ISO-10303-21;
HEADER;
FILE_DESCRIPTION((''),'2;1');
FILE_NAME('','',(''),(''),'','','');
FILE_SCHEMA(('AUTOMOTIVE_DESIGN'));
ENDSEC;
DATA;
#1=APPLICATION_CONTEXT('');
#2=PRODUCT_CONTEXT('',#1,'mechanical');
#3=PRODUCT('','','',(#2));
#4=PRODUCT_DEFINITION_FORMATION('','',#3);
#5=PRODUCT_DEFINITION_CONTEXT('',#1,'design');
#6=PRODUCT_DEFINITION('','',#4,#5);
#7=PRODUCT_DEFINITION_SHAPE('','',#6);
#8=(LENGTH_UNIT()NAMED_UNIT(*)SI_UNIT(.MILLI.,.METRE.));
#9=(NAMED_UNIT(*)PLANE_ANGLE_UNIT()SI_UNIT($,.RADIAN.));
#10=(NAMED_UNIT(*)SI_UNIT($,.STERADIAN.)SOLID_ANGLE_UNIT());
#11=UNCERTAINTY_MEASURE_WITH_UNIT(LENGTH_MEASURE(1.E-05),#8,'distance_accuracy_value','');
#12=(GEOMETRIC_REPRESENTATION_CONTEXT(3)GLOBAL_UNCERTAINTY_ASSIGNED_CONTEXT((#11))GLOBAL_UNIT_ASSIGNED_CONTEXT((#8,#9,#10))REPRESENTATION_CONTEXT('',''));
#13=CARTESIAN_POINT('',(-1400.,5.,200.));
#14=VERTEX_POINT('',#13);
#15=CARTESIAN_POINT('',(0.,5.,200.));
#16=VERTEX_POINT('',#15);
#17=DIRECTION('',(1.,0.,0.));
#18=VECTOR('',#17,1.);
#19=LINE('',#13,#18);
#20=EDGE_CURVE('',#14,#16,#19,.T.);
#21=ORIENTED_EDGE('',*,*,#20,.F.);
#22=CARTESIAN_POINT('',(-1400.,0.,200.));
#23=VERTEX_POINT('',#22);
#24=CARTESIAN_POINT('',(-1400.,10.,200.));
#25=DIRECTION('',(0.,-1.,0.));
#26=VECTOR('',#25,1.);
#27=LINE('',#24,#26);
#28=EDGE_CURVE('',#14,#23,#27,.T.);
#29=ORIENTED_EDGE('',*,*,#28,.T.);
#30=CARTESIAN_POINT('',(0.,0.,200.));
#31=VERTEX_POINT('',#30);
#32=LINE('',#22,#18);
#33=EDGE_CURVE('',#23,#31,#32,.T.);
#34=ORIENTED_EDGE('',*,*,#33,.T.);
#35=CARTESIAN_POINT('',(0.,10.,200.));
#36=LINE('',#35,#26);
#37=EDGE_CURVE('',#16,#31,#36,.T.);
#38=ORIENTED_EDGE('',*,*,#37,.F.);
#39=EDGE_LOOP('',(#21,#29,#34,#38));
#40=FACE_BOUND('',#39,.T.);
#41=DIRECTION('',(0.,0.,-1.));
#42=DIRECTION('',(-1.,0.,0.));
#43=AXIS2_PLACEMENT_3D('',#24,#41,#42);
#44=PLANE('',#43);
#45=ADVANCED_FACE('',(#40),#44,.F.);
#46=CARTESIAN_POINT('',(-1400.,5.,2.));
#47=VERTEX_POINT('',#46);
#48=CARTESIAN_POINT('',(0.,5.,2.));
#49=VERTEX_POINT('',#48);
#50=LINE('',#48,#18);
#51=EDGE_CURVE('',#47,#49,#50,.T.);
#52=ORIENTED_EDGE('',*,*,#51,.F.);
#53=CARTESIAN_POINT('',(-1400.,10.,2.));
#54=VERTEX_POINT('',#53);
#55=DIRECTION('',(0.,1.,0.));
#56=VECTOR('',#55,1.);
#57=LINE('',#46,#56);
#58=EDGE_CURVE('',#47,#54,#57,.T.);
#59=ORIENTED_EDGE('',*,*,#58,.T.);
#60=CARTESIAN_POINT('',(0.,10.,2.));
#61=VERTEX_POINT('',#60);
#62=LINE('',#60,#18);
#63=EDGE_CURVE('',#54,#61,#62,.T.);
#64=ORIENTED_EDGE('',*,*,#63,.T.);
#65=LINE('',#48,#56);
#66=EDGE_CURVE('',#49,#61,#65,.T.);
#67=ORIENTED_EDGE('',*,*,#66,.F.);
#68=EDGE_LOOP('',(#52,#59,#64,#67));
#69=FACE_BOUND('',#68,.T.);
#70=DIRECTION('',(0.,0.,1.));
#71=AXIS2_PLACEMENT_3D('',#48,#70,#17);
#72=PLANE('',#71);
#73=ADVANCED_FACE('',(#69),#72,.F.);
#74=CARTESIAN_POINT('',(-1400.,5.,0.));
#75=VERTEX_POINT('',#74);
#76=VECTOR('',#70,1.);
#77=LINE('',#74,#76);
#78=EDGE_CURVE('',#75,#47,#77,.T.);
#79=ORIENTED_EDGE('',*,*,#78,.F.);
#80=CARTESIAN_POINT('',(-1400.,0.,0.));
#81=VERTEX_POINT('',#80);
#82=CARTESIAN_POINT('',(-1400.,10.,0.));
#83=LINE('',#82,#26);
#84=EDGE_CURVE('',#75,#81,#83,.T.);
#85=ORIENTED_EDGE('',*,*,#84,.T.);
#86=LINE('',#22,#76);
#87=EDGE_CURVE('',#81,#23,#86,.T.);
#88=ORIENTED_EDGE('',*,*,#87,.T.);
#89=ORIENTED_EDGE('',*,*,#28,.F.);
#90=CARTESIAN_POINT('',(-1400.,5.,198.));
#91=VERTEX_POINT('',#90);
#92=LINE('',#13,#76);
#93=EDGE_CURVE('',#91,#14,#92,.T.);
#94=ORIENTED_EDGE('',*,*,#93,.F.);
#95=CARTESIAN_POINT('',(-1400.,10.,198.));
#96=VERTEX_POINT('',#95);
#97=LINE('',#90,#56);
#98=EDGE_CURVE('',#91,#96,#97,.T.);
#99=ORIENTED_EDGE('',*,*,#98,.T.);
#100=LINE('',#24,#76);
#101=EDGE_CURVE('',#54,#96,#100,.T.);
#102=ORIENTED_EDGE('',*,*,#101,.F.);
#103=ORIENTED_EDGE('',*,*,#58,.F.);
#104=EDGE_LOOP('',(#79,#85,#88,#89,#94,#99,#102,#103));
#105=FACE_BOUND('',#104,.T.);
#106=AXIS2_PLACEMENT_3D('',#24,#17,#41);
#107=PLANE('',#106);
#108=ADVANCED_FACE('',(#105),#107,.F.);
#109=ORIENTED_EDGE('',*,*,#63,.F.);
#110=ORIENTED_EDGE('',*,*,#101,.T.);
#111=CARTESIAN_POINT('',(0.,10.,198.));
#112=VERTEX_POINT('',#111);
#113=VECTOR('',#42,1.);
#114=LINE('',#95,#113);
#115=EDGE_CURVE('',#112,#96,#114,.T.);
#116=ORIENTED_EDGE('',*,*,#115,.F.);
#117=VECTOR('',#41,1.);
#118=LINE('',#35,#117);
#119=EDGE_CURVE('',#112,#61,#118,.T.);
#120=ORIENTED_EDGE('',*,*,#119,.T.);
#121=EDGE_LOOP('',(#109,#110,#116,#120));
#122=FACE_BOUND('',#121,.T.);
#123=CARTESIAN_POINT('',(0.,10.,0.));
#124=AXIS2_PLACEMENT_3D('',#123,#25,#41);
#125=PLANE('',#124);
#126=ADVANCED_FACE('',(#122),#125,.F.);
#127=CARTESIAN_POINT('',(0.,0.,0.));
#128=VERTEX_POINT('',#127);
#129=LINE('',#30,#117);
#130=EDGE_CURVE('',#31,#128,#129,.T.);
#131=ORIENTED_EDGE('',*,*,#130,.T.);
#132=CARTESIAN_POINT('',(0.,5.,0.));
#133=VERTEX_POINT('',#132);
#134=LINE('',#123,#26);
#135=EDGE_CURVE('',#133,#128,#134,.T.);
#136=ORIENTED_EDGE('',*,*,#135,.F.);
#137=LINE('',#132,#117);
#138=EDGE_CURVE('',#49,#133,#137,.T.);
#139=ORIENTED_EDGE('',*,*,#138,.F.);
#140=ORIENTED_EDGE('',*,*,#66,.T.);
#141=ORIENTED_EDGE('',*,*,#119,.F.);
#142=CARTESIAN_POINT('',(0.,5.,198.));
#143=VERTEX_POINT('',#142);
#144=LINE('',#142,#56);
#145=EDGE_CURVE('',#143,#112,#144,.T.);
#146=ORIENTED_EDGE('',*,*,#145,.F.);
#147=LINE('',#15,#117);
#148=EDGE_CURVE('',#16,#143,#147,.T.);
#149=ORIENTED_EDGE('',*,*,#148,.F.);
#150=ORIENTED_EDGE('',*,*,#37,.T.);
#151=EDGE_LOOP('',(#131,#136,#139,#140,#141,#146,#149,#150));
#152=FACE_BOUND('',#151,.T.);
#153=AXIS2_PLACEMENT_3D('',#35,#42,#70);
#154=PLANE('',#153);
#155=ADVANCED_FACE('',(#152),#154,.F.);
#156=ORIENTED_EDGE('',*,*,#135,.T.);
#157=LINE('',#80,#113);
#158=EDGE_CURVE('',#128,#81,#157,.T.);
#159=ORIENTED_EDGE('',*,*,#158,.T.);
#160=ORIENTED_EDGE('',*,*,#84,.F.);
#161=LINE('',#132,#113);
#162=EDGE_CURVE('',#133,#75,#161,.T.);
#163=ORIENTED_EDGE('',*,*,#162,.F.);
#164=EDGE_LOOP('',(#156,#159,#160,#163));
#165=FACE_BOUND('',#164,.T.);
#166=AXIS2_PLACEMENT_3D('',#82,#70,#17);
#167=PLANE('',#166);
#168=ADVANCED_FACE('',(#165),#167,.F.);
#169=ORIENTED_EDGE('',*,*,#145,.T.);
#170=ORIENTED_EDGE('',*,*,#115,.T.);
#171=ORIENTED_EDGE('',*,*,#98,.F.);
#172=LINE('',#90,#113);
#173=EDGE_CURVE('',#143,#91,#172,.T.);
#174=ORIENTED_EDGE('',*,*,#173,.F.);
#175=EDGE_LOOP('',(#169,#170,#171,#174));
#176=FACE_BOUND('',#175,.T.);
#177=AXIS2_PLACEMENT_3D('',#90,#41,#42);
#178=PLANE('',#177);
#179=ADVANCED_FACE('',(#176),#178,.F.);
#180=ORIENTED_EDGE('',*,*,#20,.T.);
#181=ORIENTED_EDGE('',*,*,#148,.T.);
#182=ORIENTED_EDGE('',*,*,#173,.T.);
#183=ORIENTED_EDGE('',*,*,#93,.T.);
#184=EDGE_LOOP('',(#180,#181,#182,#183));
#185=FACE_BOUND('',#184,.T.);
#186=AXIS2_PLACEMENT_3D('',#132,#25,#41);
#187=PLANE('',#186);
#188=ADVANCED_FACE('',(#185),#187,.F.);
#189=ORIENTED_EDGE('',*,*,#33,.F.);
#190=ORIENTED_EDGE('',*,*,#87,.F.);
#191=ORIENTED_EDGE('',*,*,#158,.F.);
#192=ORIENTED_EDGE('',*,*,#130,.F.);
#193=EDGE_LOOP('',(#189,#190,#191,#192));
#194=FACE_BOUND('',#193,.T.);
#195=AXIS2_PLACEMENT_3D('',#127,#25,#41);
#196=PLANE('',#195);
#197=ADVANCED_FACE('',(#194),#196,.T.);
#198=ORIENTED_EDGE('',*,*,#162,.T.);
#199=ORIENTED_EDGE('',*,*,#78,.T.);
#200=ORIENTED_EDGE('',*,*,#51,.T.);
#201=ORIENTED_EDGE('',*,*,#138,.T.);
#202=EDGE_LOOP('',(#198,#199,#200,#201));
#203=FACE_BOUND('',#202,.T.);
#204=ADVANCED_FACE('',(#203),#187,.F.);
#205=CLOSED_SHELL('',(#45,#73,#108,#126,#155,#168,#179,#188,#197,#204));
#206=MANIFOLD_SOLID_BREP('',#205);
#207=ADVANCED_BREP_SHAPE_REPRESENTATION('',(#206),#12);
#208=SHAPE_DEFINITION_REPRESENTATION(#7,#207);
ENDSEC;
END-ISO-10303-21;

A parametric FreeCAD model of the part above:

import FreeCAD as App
import Part
import Sketcher


def add_polygon(sketch, points):
    """Adds a closed chain of lines whose ends are joined by coincident constraints."""
    first, n = sketch.GeometryCount, len(points)
    for a, b in zip(points, points[1:] + points[:1]):
        sketch.addGeometry(Part.LineSegment(App.Vector(*a, 0), App.Vector(*b, 0)), False)
    for i in range(n):
        sketch.addConstraint(Sketcher.Constraint("Coincident", first + i, 2, first + (i + 1) % n, 1))

doc = App.newDocument("Part")
body = doc.addObject("PartDesign::Body", "Body")

sketch1 = doc.addObject("Sketcher::SketchObject", "Sketch")
body.addObject(sketch1)
sketch1.AttachmentSupport = (doc.XZ_Plane, [""])
sketch1.MapMode = "FlatFace"
add_polygon(sketch1, [(-1400, 0), (-1400, 200), (0, 200), (0, 0)])
sketch1.addConstraint(Sketcher.Constraint("Vertical", 0))
sketch1.addConstraint(Sketcher.Constraint("Horizontal", 1))
sketch1.addConstraint(Sketcher.Constraint("Vertical", 2))
sketch1.addConstraint(Sketcher.Constraint("Horizontal", 3))
sketch1.addConstraint(Sketcher.Constraint("Coincident", 2, 2, -1, 1))
sketch1.addConstraint(Sketcher.Constraint("DistanceX", 1, 1, 1, 2, 1400.0))
sketch1.addConstraint(Sketcher.Constraint("DistanceY", 0, 1, 0, 2, 200.0))
pad1 = doc.addObject("PartDesign::Pad", "Pad")
body.addObject(pad1)
pad1.Profile = sketch1
pad1.Length = 10
pad1.Reversed = True

sketch2 = doc.addObject("Sketcher::SketchObject", "Sketch001")
body.addObject(sketch2)
sketch2.AttachmentSupport = (doc.XZ_Plane, [""])
sketch2.MapMode = "FlatFace"
sketch2.AttachmentOffset = App.Placement(App.Vector(0, 0, -10), App.Rotation())
add_polygon(sketch2, [(-1400, 0), (-1400, 2), (0, 2), (0, 0)])
add_polygon(sketch2, [(-1400, 198), (-1400, 200), (0, 200), (0, 198)])
sketch2.addConstraint(Sketcher.Constraint("Vertical", 0))
sketch2.addConstraint(Sketcher.Constraint("Horizontal", 1))
sketch2.addConstraint(Sketcher.Constraint("Vertical", 2))
sketch2.addConstraint(Sketcher.Constraint("Horizontal", 3))
sketch2.addConstraint(Sketcher.Constraint("Vertical", 4))
sketch2.addConstraint(Sketcher.Constraint("Horizontal", 5))
sketch2.addConstraint(Sketcher.Constraint("Vertical", 6))
sketch2.addConstraint(Sketcher.Constraint("Horizontal", 7))
sketch2.addConstraint(Sketcher.Constraint("Coincident", 2, 2, -1, 1))
sketch2.addConstraint(Sketcher.Constraint("PointOnObject", 5, 2, -2))
sketch2.addConstraint(Sketcher.Constraint("Vertical", 3, 2, 4, 2))
sketch2.addConstraint(Sketcher.Constraint("Equal", 2, 4))
sketch2.addConstraint(Sketcher.Constraint("DistanceX", 1, 1, 1, 2, 1400.0))
sketch2.addConstraint(Sketcher.Constraint("DistanceY", 0, 1, 0, 2, 2.0))
sketch2.addConstraint(Sketcher.Constraint("DistanceY", -1, 1, 4, 2, 200.0))
pocket1 = doc.addObject("PartDesign::Pocket", "Pocket")
body.addObject(pocket1)
pocket1.Profile = sketch2
pocket1.Length = 5
pocket1.Reversed = True

doc.recompute()
